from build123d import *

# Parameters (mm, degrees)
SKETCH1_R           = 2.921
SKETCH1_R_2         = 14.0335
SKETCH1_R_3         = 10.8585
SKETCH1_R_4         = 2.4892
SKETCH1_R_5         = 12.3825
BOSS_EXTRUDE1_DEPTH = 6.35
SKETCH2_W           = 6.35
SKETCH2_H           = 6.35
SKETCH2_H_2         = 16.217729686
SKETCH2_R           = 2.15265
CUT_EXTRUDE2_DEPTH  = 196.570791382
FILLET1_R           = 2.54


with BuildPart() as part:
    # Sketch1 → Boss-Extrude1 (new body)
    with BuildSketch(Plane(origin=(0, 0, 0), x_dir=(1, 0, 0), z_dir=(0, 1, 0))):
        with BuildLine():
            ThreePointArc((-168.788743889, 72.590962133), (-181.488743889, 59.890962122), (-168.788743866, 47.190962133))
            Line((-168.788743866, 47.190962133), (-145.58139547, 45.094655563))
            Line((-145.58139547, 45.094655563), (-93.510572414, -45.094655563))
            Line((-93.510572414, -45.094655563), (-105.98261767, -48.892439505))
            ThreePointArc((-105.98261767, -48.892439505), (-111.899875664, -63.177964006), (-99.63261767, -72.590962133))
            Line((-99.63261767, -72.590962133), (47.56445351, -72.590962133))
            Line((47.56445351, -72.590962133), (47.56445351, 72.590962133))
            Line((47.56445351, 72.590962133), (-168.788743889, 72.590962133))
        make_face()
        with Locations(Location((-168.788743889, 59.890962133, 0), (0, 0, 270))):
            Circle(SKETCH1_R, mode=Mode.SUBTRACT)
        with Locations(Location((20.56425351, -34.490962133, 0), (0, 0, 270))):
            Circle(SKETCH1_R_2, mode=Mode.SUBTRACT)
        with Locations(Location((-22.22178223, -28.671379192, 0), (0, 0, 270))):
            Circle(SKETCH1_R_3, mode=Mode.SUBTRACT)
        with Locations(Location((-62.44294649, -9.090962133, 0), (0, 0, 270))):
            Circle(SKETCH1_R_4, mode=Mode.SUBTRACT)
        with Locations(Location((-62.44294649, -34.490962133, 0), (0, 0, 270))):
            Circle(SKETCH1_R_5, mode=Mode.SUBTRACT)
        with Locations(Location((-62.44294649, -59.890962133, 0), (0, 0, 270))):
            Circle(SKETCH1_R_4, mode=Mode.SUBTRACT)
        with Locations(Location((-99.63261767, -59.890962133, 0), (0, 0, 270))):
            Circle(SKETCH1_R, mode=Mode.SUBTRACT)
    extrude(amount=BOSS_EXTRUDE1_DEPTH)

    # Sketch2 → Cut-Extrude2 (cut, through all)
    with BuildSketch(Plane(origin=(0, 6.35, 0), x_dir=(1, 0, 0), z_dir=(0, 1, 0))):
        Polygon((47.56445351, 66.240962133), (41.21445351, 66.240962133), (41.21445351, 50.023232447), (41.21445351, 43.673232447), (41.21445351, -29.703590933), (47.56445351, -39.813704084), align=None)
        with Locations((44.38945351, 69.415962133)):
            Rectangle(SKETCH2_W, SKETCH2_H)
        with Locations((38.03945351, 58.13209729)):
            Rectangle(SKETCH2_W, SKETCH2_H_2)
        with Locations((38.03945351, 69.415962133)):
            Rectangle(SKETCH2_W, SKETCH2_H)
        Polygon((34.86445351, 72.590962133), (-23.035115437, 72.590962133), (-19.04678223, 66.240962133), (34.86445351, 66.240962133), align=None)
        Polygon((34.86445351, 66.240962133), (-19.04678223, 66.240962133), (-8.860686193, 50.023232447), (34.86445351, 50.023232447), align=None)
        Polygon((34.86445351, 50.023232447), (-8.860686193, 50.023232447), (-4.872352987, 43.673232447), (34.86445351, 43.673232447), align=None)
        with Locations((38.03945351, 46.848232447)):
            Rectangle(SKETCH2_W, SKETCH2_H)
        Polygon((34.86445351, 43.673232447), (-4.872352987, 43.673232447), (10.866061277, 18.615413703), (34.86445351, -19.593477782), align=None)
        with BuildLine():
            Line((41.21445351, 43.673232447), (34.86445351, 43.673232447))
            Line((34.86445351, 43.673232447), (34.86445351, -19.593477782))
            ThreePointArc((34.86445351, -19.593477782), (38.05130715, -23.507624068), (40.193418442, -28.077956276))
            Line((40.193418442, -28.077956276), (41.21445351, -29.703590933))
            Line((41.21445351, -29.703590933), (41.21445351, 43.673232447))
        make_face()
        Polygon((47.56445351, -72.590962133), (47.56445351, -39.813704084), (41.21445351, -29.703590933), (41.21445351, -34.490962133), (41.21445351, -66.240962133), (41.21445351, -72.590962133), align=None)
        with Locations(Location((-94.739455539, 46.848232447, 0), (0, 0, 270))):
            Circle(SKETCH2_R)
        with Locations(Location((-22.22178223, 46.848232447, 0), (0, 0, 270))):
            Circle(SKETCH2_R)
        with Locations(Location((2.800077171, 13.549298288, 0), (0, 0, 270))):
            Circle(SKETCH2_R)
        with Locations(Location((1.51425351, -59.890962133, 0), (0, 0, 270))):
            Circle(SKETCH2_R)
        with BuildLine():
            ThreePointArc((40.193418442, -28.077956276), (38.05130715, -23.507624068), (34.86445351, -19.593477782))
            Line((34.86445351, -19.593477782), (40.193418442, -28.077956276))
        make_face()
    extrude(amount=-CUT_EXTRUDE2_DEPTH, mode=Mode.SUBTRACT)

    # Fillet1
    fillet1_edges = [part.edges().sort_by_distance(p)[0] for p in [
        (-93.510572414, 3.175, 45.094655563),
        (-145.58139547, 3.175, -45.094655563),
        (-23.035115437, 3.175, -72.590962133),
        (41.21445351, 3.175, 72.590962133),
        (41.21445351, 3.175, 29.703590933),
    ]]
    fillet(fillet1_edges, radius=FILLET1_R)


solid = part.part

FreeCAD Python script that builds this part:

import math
import FreeCAD as App
import Part
import Sketcher

V = App.Vector
Q = App.Units.Quantity


def edges_at(feature, points):
    """Names of the edges that pass closest to the given points."""
    edges = feature.Shape.Edges
    near = lambda p: min(range(len(edges)), key=lambda i: edges[i].distToShape(Part.Vertex(*p))[0])
    return sorted({f"Edge{near(p) + 1}" for p in points})

doc = App.newDocument("Part")
params = doc.addObject("Spreadsheet::Sheet", "Params")
for row, (alias, value) in enumerate([
    ("sketch1_radius", "0.5 in"),
    ("sketch1_diameter", "0.23 in"),
    ("sketch1_diameter2", "0.196 in"),
    ("sketch1_diameter3", "0.975 in"),
    ("sketch1_diameter4", "1.105 in"),
    ("pad1_length", "0.25 in"),
    ("sketch2_width", "0.25 in"),
    ("fillet_radius", "0.1 in"),
], start=1):
    params.set(f"A{row}", alias)
    params.set(f"B{row}", "=" + value)
    params.setAlias(f"B{row}", alias)

body = doc.addObject("PartDesign::Body", "Body")

# Sketch on XZ plane
sketch1 = body.newObject("Sketcher::SketchObject", "Sketch")
sketch1.AttachmentSupport = (doc.getObject("XZ_Plane"), [""])
sketch1.MapMode = "FlatFace"
sketch1.addGeometry(Part.ArcOfCircle(Part.Circle(V(-168.8, -59.9, 0), V(0, 0, 1), 12.7), math.radians(90), math.radians(270)), False)
sketch1.addGeometry(Part.LineSegment(V(-168.8, -47.2, 0), V(-145.6, -45.1, 0)), False)
sketch1.addGeometry(Part.LineSegment(V(-145.6, -45.1, 0), V(-93.5, 45.1, 0)), False)
sketch1.addGeometry(Part.LineSegment(V(-93.5, 45.1, 0), V(-106, 48.9, 0)), False)
sketch1.addGeometry(Part.ArcOfCircle(Part.Circle(V(-99.6, 59.9, 0), V(0, 0, 1), 12.7), math.radians(90), math.radians(240)), False)
sketch1.addGeometry(Part.LineSegment(V(-99.6, 72.6, 0), V(47.6, 72.6, 0)), False)
sketch1.addGeometry(Part.LineSegment(V(47.6, 72.6, 0), V(47.6, -72.6, 0)), False)
sketch1.addGeometry(Part.LineSegment(V(47.6, -72.6, 0), V(-168.8, -72.6, 0)), False)
sketch1.addGeometry(Part.Circle(V(-99.6, 59.9, 0), V(0, 0, 1), 2.9), False)
sketch1.addGeometry(Part.Circle(V(-62.4, 59.9, 0), V(0, 0, 1), 2.5), False)
sketch1.addGeometry(Part.Circle(V(-62.4, 34.5, 0), V(0, 0, 1), 12.4), False)
sketch1.addGeometry(Part.Circle(V(20.6, 34.5, 0), V(0, 0, 1), 14), False)
sketch1.addGeometry(Part.Circle(V(-22.2, 28.7, 0), V(0, 0, 1), 10.9), False)
sketch1.addGeometry(Part.Circle(V(-62.4, 9.1, 0), V(0, 0, 1), 2.5), False)
sketch1.addGeometry(Part.Circle(V(-168.8, -59.9, 0), V(0, 0, 1), 2.9), False)
sketch1.addConstraint(Sketcher.Constraint("Coincident", 0, 1, 1, 1))
sketch1.addConstraint(Sketcher.Constraint("Coincident", 1, 2, 2, 1))
sketch1.addConstraint(Sketcher.Constraint("Coincident", 2, 2, 3, 1))
sketch1.addConstraint(Sketcher.Constraint("Coincident", 3, 2, 4, 2))
sketch1.addConstraint(Sketcher.Constraint("Tangent", 4, 1, 5, 1))
sketch1.addConstraint(Sketcher.Constraint("Coincident", 5, 2, 6, 1))
sketch1.addConstraint(Sketcher.Constraint("Coincident", 6, 2, 7, 1))
sketch1.addConstraint(Sketcher.Constraint("Tangent", 7, 2, 0, 2))
sketch1.addConstraint(Sketcher.Constraint("Horizontal", 5))
sketch1.addConstraint(Sketcher.Constraint("Vertical", 6))
sketch1.addConstraint(Sketcher.Constraint("Horizontal", 7))
sketch1.addConstraint(Sketcher.Constraint("Coincident", 8, 3, 4, 3))
sketch1.addConstraint(Sketcher.Constraint("Coincident", 14, 3, 0, 3))
sketch1.addConstraint(Sketcher.Constraint("Equal", 0, 4))
sketch1.addConstraint(Sketcher.Constraint("Equal", 9, 13))
sketch1.addConstraint(Sketcher.Constraint("Equal", 8, 14))
sketch1.addConstraint(Sketcher.Constraint("Horizontal", 8, 3, 9, 3))
sketch1.addConstraint(Sketcher.Constraint("Horizontal", 10, 3, 11, 3))
sketch1.addConstraint(Sketcher.Constraint("Vertical", 9, 3, 10, 3))
sketch1.addConstraint(Sketcher.Constraint("Vertical", 10, 3, 13, 3))
sketch1.addConstraint(Sketcher.Constraint("Vertical", 14, 3, 0, 1))
sketch1.addConstraint(Sketcher.Constraint("Radius", 0, Q("0.5 in")))
sketch1.addConstraint(Sketcher.Constraint("Diameter", 8, Q("0.23 in")))
sketch1.addConstraint(Sketcher.Constraint("Diameter", 9, Q("0.196 in")))
sketch1.addConstraint(Sketcher.Constraint("Diameter", 10, Q("0.975 in")))
sketch1.addConstraint(Sketcher.Constraint("Diameter", 11, Q("1.105 in")))
sketch1.addConstraint(Sketcher.Constraint("Diameter", 12, Q("0.855 in")))
sketch1.addConstraint(Sketcher.Constraint("Angle", 2, Q("60 deg")))
sketch1.addConstraint(Sketcher.Constraint("DistanceY", 10, 3, 9, 3, Q("1 in")))
sketch1.addConstraint(Sketcher.Constraint("DistanceY", 13, 3, 10, 3, Q("1 in")))
sketch1.addConstraint(Sketcher.Constraint("DistanceX", 3, 2, 4, 3, Q("0.25 in")))
sketch1.addConstraint(Sketcher.Constraint("DistanceX", 10, 3, 11, 3, Q("3.268 in")))
sketch1.addConstraint(Sketcher.Constraint("DistanceX", 11, 3, 5, 2, Q("1.063 in")))
sketch1.addConstraint(Sketcher.Constraint("DistanceX", 5, 1, 5, 2, 147.197071))
sketch1.addConstraint(Sketcher.Constraint("Distance", 3, 13.037449))
sketch1.addConstraint(Sketcher.Constraint("DistanceX", 7, 2, 7, 1, 216.353197))
sketch1.addConstraint(Sketcher.Constraint("DistanceY", 6, 2, 6, 1, 145.181924))
sketch1.addConstraint(Sketcher.Constraint("DistanceY", -1, 1, 12, 3, 28.671379))
sketch1.addConstraint(Sketcher.Constraint("DistanceY", -1, 1, 3, 2, 48.89244))
sketch1.addConstraint(Sketcher.Constraint("DistanceX", 0, 1, 1, 2, 23.207348))
sketch1.addConstraint(Sketcher.Constraint("Distance", 1, 23.301835))
sketch1.addConstraint(Sketcher.Constraint("DistanceX", 0, 3, -1, 1, 168.788744))
sketch1.addConstraint(Sketcher.Constraint("DistanceX", 12, 3, -1, 1, 22.221782))
sketch1.setExpression("Constraints[21]", "Params.sketch1_radius")
sketch1.setExpression("Constraints[22]", "Params.sketch1_diameter")
sketch1.setExpression("Constraints[23]", "Params.sketch1_diameter2")
sketch1.setExpression("Constraints[24]", "Params.sketch1_diameter3")
sketch1.setExpression("Constraints[25]", "Params.sketch1_diameter4")
pad1 = body.newObject("PartDesign::Pad", "Pad")
pad1.Profile = sketch1
pad1.setExpression("Length", "Params.pad1_length")
pad1.Reversed = True

# Sketch on XZ plane
sketch2 = body.newObject("Sketcher::SketchObject", "Sketch001")
sketch2.AttachmentSupport = (doc.getObject("XZ_Plane"), [""])
sketch2.MapMode = "FlatFace"
sketch2.AttachmentOffset = App.Placement(V(0, 0, -0.25 * 25.4), App.Rotation())
sketch2.addGeometry(Part.LineSegment(V(47.6, -72.6, 0), V(-23, -72.6, 0)), False)
sketch2.addGeometry(Part.LineSegment(V(-23, -72.6, 0), V(-19, -66.2, 0)), False)
sketch2.addGeometry(Part.LineSegment(V(-19, -66.2, 0), V(-8.9, -50, 0)), False)
sketch2.addGeometry(Part.LineSegment(V(-8.9, -50, 0), V(-4.9, -43.7, 0)), False)
sketch2.addGeometry(Part.LineSegment(V(-4.9, -43.7, 0), V(10.9, -18.6, 0)), False)
sketch2.addGeometry(Part.LineSegment(V(10.9, -18.6, 0), V(34.9, 19.6, 0)), False)
sketch2.addGeometry(Part.LineSegment(V(34.9, 19.6, 0), V(40.2, 28.1, 0)), False)
sketch2.addGeometry(Part.LineSegment(V(40.2, 28.1, 0), V(41.2, 29.7, 0)), False)
sketch2.addGeometry(Part.LineSegment(V(41.2, 29.7, 0), V(41.2, 72.6, 0)), False)
sketch2.addGeometry(Part.LineSegment(V(41.2, 72.6, 0), V(47.6, 72.6, 0)), False)
sketch2.addGeometry(Part.LineSegment(V(47.6, 72.6, 0), V(47.6, -72.6, 0)), False)
sketch2.addGeometry(Part.Circle(V(-94.7, -46.8, 0), V(0, 0, 1), 2.2), False)
sketch2.addGeometry(Part.Circle(V(-22.2, -46.8, 0), V(0, 0, 1), 2.2), False)
sketch2.addGeometry(Part.Circle(V(2.8, -13.5, 0), V(0, 0, 1), 2.2), False)
sketch2.addGeometry(Part.Circle(V(1.5, 59.9, 0), V(0, 0, 1), 2.2), False)
sketch2.addConstraint(Sketcher.Constraint("Coincident", 0, 2, 1, 1))
sketch2.addConstraint(Sketcher.Constraint("Coincident", 1, 2, 2, 1))
sketch2.addConstraint(Sketcher.Constraint("Coincident", 2, 2, 3, 1))
sketch2.addConstraint(Sketcher.Constraint("Coincident", 3, 2, 4, 1))
sketch2.addConstraint(Sketcher.Constraint("Coincident", 4, 2, 5, 1))
sketch2.addConstraint(Sketcher.Constraint("Coincident", 5, 2, 6, 1))
sketch2.addConstraint(Sketcher.Constraint("Coincident", 6, 2, 7, 1))
sketch2.addConstraint(Sketcher.Constraint("Coincident", 7, 2, 8, 1))
sketch2.addConstraint(Sketcher.Constraint("Coincident", 8, 2, 9, 1))
sketch2.addConstraint(Sketcher.Constraint("Coincident", 9, 2, 10, 1))
sketch2.addConstraint(Sketcher.Constraint("Coincident", 10, 2, 0, 1))
sketch2.addConstraint(Sketcher.Constraint("Horizontal", 0))
sketch2.addConstraint(Sketcher.Constraint("Vertical", 8))
sketch2.addConstraint(Sketcher.Constraint("Horizontal", 9))
sketch2.addConstraint(Sketcher.Constraint("Vertical", 10))
sketch2.addConstraint(Sketcher.Constraint("Equal", 11, 12))
sketch2.addConstraint(Sketcher.Constraint("Equal", 12, 13))
sketch2.addConstraint(Sketcher.Constraint("Equal", 13, 14))
sketch2.addConstraint(Sketcher.Constraint("Parallel", 1, 2))
sketch2.addConstraint(Sketcher.Constraint("Parallel", 2, 3))
sketch2.addConstraint(Sketcher.Constraint("Parallel", 3, 4))
sketch2.addConstraint(Sketcher.Constraint("Parallel", 4, 5))
sketch2.addConstraint(Sketcher.Constraint("Parallel", 5, 6))
sketch2.addConstraint(Sketcher.Constraint("Parallel", 6, 7))
sketch2.addConstraint(Sketcher.Constraint("Horizontal", 11, 3, 12, 3))
sketch2.addConstraint(Sketcher.Constraint("Equal", 1, 3))
sketch2.addConstraint(Sketcher.Constraint("Diameter", 11, Q("0.1695 in")))
sketch2.addConstraint(Sketcher.Constraint("DistanceX", 9, 1, 9, 2, Q("0.25 in")))
sketch2.addConstraint(Sketcher.Constraint("DistanceY", 14, 3, 8, 2, Q("0.5 in")))
sketch2.addConstraint(Sketcher.Constraint("DistanceX", 5, 2, 9, 2, Q("0.5 in")))
sketch2.addConstraint(Sketcher.Constraint("DistanceY", 0, 2, 1, 2, Q("0.25 in")))
sketch2.addConstraint(Sketcher.Constraint("DistanceX", 12, 3, 1, 2, Q("0.125 in")))
sketch2.addConstraint(Sketcher.Constraint("DistanceY", 2, 2, 12, 3, Q("0.125 in")))
sketch2.addConstraint(Sketcher.Constraint("DistanceX", 14, 3, 5, 2, Q("1.313 in")))
sketch2.addConstraint(Sketcher.Constraint("DistanceX", 11, 3, -1, 1, Q("3.7298998 in")))
sketch2.addConstraint(Sketcher.Constraint("DistanceX", 0, 2, 0, 1, 70.599569))
sketch2.addConstraint(Sketcher.Constraint("DistanceY", 8, 1, 8, 2, 42.887371))
sketch2.addConstraint(Sketcher.Constraint("DistanceY", 13, 3, -1, 1, 13.549298))
sketch2.addConstraint(Sketcher.Constraint("Distance", 1, 7.49862))
sketch2.addConstraint(Sketcher.Constraint("Distance", 5, 45.120308))
sketch2.addConstraint(Sketcher.Constraint("DistanceX", -1, 1, 4, 2, 10.866061))
sketch2.addConstraint(Sketcher.Constraint("DistanceX", -1, 1, 6, 2, 40.193418))
sketch2.addConstraint(Sketcher.Constraint("DistanceY", -1, 1, 7, 2, 29.703591))
sketch2.addConstraint(Sketcher.Constraint("DistanceX", 12, 3, 13, 3, 25.021859))
sketch2.addConstraint(Sketcher.Constraint("DistanceY", 0, 2, 12, 3, 25.74273))
sketch2.setExpression("Constraints[27]", "Params.sketch2_width")
pocket1 = body.newObject("PartDesign::Pocket", "Pocket")
pocket1.Profile = sketch2
pocket1.Type = "ThroughAll"
pocket1.Reversed = True
doc.recompute()

fillet = body.newObject("PartDesign::Fillet", "Fillet")
fillet.Base = (pocket1, edges_at(pocket1, [
    (-93.511, 3.175, 45.095),
    (-145.581, 3.175, -45.095),
    (-23.035, 3.175, -72.591),
    (41.214, 3.175, 72.591),
    (41.214, 3.175, 29.704),
]))
fillet.setExpression("Radius", "Params.fillet_radius")

doc.recompute()
